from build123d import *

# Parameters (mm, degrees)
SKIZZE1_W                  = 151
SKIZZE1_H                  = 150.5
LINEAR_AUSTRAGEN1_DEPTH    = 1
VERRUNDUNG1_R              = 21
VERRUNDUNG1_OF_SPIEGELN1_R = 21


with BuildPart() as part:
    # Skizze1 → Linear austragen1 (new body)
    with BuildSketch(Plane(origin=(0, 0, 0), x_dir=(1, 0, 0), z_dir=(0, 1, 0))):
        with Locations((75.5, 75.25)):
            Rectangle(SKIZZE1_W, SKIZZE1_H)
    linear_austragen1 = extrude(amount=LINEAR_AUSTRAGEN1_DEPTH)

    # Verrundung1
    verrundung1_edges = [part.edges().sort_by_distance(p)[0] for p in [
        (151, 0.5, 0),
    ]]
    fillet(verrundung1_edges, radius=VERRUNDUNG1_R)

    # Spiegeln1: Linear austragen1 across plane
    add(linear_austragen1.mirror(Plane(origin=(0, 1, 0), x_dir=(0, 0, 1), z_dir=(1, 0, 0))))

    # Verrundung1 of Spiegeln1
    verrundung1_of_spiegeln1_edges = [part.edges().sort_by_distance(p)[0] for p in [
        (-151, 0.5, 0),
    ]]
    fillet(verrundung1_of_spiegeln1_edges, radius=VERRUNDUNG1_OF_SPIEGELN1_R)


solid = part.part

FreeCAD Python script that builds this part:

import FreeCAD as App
import Part
import Sketcher
Q = App.Units.Quantity


def edges_at(feature, points):
    """Names of the edges that pass closest to the given points."""
    edges = feature.Shape.Edges
    near = lambda p: min(range(len(edges)), key=lambda i: edges[i].distToShape(Part.Vertex(*p))[0])
    return sorted({f"Edge{near(p) + 1}" for p in points})

doc = App.newDocument("Part")
body = doc.addObject("PartDesign::Body", "Body")

sketch1 = doc.addObject("Sketcher::SketchObject", "Sketch")
body.addObject(sketch1)
sketch1.AttachmentSupport = (doc.XZ_Plane, [""])
sketch1.MapMode = "FlatFace"
sketch1.addGeometry(Part.LineSegment(App.Vector(0, -150, 0), App.Vector(0, 0, 0)), False)
sketch1.addGeometry(Part.LineSegment(App.Vector(0, 0, 0), App.Vector(151, 0, 0)), False)
sketch1.addGeometry(Part.LineSegment(App.Vector(151, 0, 0), App.Vector(151, -150, 0)), False)
sketch1.addGeometry(Part.LineSegment(App.Vector(151, -150, 0), App.Vector(0, -150, 0)), False)
sketch1.addConstraint(Sketcher.Constraint("Coincident", 0, 2, 1, 1))
sketch1.addConstraint(Sketcher.Constraint("Coincident", 1, 2, 2, 1))
sketch1.addConstraint(Sketcher.Constraint("Coincident", 2, 2, 3, 1))
sketch1.addConstraint(Sketcher.Constraint("Coincident", 3, 2, 0, 1))
sketch1.addConstraint(Sketcher.Constraint("Vertical", 0))
sketch1.addConstraint(Sketcher.Constraint("Horizontal", 1))
sketch1.addConstraint(Sketcher.Constraint("Vertical", 2))
sketch1.addConstraint(Sketcher.Constraint("Horizontal", 3))
sketch1.addConstraint(Sketcher.Constraint("Coincident", 0, 2, -1, 1))
sketch1.addConstraint(Sketcher.Constraint("DistanceX", 1, 1, 1, 2, Q("151 mm")))
sketch1.addConstraint(Sketcher.Constraint("DistanceY", 0, 1, 0, 2, Q("150.5 mm")))
pad1 = doc.addObject("PartDesign::Pad", "Pad")
body.addObject(pad1)
pad1.Profile = sketch1
pad1.Length = 1
pad1.Reversed = True
doc.recompute()

fillet = doc.addObject("PartDesign::Fillet", "Fillet")
body.addObject(fillet)
fillet.Base = (pad1, edges_at(pad1, [(151, 0.5, 0)]))
fillet.Radius = 21
doc.recompute()

mirrored = doc.addObject("PartDesign::Mirrored", "Mirrored")
body.addObject(mirrored)
mirrored.Originals = [pad1]
mirrored.MirrorPlane = (doc.YZ_Plane, [""])
body.Tip = mirrored
doc.recompute()

fillet2 = doc.addObject("PartDesign::Fillet", "Fillet001")
body.addObject(fillet2)
fillet2.Base = (mirrored, edges_at(mirrored, [(-151, 0.5, 0)]))
fillet2.Radius = 21

doc.recompute()
